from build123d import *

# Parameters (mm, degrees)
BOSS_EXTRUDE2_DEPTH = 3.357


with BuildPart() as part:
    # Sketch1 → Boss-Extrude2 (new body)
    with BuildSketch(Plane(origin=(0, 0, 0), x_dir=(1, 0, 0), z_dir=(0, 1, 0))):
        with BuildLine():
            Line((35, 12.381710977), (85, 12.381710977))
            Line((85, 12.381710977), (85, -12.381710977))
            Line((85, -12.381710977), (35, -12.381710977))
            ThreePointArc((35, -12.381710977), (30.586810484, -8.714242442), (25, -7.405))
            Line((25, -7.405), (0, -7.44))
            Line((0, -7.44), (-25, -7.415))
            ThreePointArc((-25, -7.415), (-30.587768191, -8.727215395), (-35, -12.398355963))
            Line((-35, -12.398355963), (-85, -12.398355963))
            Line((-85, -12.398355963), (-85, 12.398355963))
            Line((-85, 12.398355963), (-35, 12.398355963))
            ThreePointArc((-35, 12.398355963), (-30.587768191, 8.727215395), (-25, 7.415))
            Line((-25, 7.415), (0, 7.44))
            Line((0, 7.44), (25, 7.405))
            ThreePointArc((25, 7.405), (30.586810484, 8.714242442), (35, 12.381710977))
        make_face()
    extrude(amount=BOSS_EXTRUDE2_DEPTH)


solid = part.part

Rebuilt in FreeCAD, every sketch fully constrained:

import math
import FreeCAD as App
import Part
import Sketcher
from FreeCAD import Vector
Q = App.Units.Quantity

doc = App.newDocument("Part")
body = doc.addObject("PartDesign::Body", "Body")

sketch1 = body.newObject("Sketcher::SketchObject", "Sketch")
sketch1.AttachmentSupport = (doc.getObject("XZ_Plane"), [""])
sketch1.MapMode = "FlatFace"
sketch1.addGeometry(Part.LineSegment(Vector(85, -12.381711, 0), Vector(35, -12.381711, 0)), False)
sketch1.addGeometry(Part.ArcOfCircle(Part.Circle(Vector(25.0175, -19.904988, 0), Vector(0, 0, 1), 12.5), math.radians(37.00338), math.radians(90.080214)), False)
sketch1.addGeometry(Part.LineSegment(Vector(25, -7.405, 0), Vector(0, -7.44, 0)), False)
sketch1.addGeometry(Part.LineSegment(Vector(0, -7.44, 0), Vector(-25, -7.415, 0)), False)
sketch1.addGeometry(Part.ArcOfCircle(Part.Circle(Vector(-25.0125, -19.914994, 0), Vector(0, 0, 1), 12.5), math.radians(89.942704), math.radians(143.034715)), False)
sketch1.addGeometry(Part.LineSegment(Vector(-35, -12.398356, 0), Vector(-85, -12.398356, 0)), False)
sketch1.addGeometry(Part.LineSegment(Vector(-85, -12.398356, 0), Vector(-85, 12.398356, 0)), False)
sketch1.addGeometry(Part.LineSegment(Vector(-85, 12.398356, 0), Vector(-35, 12.398356, 0)), False)
sketch1.addGeometry(Part.ArcOfCircle(Part.Circle(Vector(-25.0125, 19.914994, 0), Vector(0, 0, 1), 12.5), math.radians(-143.034715), math.radians(-89.942704)), False)
sketch1.addGeometry(Part.LineSegment(Vector(-25, 7.415, 0), Vector(0, 7.44, 0)), False)
sketch1.addGeometry(Part.LineSegment(Vector(0, 7.44, 0), Vector(25, 7.405, 0)), False)
sketch1.addGeometry(Part.ArcOfCircle(Part.Circle(Vector(25.0175, 19.904988, 0), Vector(0, 0, 1), 12.5), math.radians(-90.080214), math.radians(-37.00338)), False)
sketch1.addGeometry(Part.LineSegment(Vector(35, 12.381711, 0), Vector(85, 12.381711, 0)), False)
sketch1.addGeometry(Part.LineSegment(Vector(85, 12.381711, 0), Vector(85, -12.381711, 0)), False)
sketch1.addConstraint(Sketcher.Constraint("Coincident", 0, 2, 1, 1))
sketch1.addConstraint(Sketcher.Constraint("Tangent", 1, 2, 2, 1))
sketch1.addConstraint(Sketcher.Constraint("Coincident", 2, 2, 3, 1))
sketch1.addConstraint(Sketcher.Constraint("Tangent", 3, 2, 4, 1))
sketch1.addConstraint(Sketcher.Constraint("Coincident", 4, 2, 5, 1))
sketch1.addConstraint(Sketcher.Constraint("Coincident", 5, 2, 6, 1))
sketch1.addConstraint(Sketcher.Constraint("Coincident", 6, 2, 7, 1))
sketch1.addConstraint(Sketcher.Constraint("Coincident", 7, 2, 8, 1))
sketch1.addConstraint(Sketcher.Constraint("Tangent", 8, 2, 9, 1))
sketch1.addConstraint(Sketcher.Constraint("Coincident", 9, 2, 10, 1))
sketch1.addConstraint(Sketcher.Constraint("Tangent", 10, 2, 11, 1))
sketch1.addConstraint(Sketcher.Constraint("Coincident", 11, 2, 12, 1))
sketch1.addConstraint(Sketcher.Constraint("Coincident", 12, 2, 13, 1))
sketch1.addConstraint(Sketcher.Constraint("Coincident", 13, 2, 0, 1))
sketch1.addConstraint(Sketcher.Constraint("Horizontal", 0))
sketch1.addConstraint(Sketcher.Constraint("Horizontal", 5))
sketch1.addConstraint(Sketcher.Constraint("Vertical", 6))
sketch1.addConstraint(Sketcher.Constraint("Horizontal", 7))
sketch1.addConstraint(Sketcher.Constraint("Horizontal", 12))
sketch1.addConstraint(Sketcher.Constraint("Vertical", 13))
sketch1.addConstraint(Sketcher.Constraint("Equal", 1, 4))
sketch1.addConstraint(Sketcher.Constraint("Equal", 4, 8))
sketch1.addConstraint(Sketcher.Constraint("Equal", 8, 11))
sketch1.addConstraint(Sketcher.Constraint("Symmetric", 2, 2, 9, 2, -1, 1))
sketch1.addConstraint(Sketcher.Constraint("Symmetric", 4, 3, 8, 3, -1))
sketch1.addConstraint(Sketcher.Constraint("Symmetric", 1, 3, 11, 3, -1))
sketch1.addConstraint(Sketcher.Constraint("PointOnObject", 2, 2, -2))
sketch1.addConstraint(Sketcher.Constraint("Vertical", 4, 2, 7, 2))
sketch1.addConstraint(Sketcher.Constraint("Vertical", 0, 2, 11, 2))
sketch1.addConstraint(Sketcher.Constraint("Equal", 0, 5))
sketch1.addConstraint(Sketcher.Constraint("Radius", 1, Q("12.5 mm")))
sketch1.addConstraint(Sketcher.Constraint("DistanceX", 0, 2, 0, 1, Q("50 mm")))
sketch1.addConstraint(Sketcher.Constraint("DistanceX", -1, 1, 0, 2, Q("35 mm")))
sketch1.addConstraint(Sketcher.Constraint("DistanceX", -1, 1, 1, 2, Q("25 mm")))
sketch1.addConstraint(Sketcher.Constraint("DistanceX", 3, 2, -1, 1, Q("25 mm")))
sketch1.addConstraint(Sketcher.Constraint("DistanceX", 4, 2, -1, 1, Q("35 mm")))
sketch1.addConstraint(Sketcher.Constraint("DistanceY", 2, 2, -1, 1, Q("7.44 mm")))
sketch1.addConstraint(Sketcher.Constraint("DistanceX", 4, 3, 1, 3, Q("50.03 mm")))
sketch1.addConstraint(Sketcher.Constraint("DistanceY", 3, 2, 1, 2, Q("0.01 mm")))
pad1 = body.newObject("PartDesign::Pad", "Pad")
pad1.Profile = sketch1
pad1.Length = 3.357
pad1.Reversed = True

doc.recompute()
